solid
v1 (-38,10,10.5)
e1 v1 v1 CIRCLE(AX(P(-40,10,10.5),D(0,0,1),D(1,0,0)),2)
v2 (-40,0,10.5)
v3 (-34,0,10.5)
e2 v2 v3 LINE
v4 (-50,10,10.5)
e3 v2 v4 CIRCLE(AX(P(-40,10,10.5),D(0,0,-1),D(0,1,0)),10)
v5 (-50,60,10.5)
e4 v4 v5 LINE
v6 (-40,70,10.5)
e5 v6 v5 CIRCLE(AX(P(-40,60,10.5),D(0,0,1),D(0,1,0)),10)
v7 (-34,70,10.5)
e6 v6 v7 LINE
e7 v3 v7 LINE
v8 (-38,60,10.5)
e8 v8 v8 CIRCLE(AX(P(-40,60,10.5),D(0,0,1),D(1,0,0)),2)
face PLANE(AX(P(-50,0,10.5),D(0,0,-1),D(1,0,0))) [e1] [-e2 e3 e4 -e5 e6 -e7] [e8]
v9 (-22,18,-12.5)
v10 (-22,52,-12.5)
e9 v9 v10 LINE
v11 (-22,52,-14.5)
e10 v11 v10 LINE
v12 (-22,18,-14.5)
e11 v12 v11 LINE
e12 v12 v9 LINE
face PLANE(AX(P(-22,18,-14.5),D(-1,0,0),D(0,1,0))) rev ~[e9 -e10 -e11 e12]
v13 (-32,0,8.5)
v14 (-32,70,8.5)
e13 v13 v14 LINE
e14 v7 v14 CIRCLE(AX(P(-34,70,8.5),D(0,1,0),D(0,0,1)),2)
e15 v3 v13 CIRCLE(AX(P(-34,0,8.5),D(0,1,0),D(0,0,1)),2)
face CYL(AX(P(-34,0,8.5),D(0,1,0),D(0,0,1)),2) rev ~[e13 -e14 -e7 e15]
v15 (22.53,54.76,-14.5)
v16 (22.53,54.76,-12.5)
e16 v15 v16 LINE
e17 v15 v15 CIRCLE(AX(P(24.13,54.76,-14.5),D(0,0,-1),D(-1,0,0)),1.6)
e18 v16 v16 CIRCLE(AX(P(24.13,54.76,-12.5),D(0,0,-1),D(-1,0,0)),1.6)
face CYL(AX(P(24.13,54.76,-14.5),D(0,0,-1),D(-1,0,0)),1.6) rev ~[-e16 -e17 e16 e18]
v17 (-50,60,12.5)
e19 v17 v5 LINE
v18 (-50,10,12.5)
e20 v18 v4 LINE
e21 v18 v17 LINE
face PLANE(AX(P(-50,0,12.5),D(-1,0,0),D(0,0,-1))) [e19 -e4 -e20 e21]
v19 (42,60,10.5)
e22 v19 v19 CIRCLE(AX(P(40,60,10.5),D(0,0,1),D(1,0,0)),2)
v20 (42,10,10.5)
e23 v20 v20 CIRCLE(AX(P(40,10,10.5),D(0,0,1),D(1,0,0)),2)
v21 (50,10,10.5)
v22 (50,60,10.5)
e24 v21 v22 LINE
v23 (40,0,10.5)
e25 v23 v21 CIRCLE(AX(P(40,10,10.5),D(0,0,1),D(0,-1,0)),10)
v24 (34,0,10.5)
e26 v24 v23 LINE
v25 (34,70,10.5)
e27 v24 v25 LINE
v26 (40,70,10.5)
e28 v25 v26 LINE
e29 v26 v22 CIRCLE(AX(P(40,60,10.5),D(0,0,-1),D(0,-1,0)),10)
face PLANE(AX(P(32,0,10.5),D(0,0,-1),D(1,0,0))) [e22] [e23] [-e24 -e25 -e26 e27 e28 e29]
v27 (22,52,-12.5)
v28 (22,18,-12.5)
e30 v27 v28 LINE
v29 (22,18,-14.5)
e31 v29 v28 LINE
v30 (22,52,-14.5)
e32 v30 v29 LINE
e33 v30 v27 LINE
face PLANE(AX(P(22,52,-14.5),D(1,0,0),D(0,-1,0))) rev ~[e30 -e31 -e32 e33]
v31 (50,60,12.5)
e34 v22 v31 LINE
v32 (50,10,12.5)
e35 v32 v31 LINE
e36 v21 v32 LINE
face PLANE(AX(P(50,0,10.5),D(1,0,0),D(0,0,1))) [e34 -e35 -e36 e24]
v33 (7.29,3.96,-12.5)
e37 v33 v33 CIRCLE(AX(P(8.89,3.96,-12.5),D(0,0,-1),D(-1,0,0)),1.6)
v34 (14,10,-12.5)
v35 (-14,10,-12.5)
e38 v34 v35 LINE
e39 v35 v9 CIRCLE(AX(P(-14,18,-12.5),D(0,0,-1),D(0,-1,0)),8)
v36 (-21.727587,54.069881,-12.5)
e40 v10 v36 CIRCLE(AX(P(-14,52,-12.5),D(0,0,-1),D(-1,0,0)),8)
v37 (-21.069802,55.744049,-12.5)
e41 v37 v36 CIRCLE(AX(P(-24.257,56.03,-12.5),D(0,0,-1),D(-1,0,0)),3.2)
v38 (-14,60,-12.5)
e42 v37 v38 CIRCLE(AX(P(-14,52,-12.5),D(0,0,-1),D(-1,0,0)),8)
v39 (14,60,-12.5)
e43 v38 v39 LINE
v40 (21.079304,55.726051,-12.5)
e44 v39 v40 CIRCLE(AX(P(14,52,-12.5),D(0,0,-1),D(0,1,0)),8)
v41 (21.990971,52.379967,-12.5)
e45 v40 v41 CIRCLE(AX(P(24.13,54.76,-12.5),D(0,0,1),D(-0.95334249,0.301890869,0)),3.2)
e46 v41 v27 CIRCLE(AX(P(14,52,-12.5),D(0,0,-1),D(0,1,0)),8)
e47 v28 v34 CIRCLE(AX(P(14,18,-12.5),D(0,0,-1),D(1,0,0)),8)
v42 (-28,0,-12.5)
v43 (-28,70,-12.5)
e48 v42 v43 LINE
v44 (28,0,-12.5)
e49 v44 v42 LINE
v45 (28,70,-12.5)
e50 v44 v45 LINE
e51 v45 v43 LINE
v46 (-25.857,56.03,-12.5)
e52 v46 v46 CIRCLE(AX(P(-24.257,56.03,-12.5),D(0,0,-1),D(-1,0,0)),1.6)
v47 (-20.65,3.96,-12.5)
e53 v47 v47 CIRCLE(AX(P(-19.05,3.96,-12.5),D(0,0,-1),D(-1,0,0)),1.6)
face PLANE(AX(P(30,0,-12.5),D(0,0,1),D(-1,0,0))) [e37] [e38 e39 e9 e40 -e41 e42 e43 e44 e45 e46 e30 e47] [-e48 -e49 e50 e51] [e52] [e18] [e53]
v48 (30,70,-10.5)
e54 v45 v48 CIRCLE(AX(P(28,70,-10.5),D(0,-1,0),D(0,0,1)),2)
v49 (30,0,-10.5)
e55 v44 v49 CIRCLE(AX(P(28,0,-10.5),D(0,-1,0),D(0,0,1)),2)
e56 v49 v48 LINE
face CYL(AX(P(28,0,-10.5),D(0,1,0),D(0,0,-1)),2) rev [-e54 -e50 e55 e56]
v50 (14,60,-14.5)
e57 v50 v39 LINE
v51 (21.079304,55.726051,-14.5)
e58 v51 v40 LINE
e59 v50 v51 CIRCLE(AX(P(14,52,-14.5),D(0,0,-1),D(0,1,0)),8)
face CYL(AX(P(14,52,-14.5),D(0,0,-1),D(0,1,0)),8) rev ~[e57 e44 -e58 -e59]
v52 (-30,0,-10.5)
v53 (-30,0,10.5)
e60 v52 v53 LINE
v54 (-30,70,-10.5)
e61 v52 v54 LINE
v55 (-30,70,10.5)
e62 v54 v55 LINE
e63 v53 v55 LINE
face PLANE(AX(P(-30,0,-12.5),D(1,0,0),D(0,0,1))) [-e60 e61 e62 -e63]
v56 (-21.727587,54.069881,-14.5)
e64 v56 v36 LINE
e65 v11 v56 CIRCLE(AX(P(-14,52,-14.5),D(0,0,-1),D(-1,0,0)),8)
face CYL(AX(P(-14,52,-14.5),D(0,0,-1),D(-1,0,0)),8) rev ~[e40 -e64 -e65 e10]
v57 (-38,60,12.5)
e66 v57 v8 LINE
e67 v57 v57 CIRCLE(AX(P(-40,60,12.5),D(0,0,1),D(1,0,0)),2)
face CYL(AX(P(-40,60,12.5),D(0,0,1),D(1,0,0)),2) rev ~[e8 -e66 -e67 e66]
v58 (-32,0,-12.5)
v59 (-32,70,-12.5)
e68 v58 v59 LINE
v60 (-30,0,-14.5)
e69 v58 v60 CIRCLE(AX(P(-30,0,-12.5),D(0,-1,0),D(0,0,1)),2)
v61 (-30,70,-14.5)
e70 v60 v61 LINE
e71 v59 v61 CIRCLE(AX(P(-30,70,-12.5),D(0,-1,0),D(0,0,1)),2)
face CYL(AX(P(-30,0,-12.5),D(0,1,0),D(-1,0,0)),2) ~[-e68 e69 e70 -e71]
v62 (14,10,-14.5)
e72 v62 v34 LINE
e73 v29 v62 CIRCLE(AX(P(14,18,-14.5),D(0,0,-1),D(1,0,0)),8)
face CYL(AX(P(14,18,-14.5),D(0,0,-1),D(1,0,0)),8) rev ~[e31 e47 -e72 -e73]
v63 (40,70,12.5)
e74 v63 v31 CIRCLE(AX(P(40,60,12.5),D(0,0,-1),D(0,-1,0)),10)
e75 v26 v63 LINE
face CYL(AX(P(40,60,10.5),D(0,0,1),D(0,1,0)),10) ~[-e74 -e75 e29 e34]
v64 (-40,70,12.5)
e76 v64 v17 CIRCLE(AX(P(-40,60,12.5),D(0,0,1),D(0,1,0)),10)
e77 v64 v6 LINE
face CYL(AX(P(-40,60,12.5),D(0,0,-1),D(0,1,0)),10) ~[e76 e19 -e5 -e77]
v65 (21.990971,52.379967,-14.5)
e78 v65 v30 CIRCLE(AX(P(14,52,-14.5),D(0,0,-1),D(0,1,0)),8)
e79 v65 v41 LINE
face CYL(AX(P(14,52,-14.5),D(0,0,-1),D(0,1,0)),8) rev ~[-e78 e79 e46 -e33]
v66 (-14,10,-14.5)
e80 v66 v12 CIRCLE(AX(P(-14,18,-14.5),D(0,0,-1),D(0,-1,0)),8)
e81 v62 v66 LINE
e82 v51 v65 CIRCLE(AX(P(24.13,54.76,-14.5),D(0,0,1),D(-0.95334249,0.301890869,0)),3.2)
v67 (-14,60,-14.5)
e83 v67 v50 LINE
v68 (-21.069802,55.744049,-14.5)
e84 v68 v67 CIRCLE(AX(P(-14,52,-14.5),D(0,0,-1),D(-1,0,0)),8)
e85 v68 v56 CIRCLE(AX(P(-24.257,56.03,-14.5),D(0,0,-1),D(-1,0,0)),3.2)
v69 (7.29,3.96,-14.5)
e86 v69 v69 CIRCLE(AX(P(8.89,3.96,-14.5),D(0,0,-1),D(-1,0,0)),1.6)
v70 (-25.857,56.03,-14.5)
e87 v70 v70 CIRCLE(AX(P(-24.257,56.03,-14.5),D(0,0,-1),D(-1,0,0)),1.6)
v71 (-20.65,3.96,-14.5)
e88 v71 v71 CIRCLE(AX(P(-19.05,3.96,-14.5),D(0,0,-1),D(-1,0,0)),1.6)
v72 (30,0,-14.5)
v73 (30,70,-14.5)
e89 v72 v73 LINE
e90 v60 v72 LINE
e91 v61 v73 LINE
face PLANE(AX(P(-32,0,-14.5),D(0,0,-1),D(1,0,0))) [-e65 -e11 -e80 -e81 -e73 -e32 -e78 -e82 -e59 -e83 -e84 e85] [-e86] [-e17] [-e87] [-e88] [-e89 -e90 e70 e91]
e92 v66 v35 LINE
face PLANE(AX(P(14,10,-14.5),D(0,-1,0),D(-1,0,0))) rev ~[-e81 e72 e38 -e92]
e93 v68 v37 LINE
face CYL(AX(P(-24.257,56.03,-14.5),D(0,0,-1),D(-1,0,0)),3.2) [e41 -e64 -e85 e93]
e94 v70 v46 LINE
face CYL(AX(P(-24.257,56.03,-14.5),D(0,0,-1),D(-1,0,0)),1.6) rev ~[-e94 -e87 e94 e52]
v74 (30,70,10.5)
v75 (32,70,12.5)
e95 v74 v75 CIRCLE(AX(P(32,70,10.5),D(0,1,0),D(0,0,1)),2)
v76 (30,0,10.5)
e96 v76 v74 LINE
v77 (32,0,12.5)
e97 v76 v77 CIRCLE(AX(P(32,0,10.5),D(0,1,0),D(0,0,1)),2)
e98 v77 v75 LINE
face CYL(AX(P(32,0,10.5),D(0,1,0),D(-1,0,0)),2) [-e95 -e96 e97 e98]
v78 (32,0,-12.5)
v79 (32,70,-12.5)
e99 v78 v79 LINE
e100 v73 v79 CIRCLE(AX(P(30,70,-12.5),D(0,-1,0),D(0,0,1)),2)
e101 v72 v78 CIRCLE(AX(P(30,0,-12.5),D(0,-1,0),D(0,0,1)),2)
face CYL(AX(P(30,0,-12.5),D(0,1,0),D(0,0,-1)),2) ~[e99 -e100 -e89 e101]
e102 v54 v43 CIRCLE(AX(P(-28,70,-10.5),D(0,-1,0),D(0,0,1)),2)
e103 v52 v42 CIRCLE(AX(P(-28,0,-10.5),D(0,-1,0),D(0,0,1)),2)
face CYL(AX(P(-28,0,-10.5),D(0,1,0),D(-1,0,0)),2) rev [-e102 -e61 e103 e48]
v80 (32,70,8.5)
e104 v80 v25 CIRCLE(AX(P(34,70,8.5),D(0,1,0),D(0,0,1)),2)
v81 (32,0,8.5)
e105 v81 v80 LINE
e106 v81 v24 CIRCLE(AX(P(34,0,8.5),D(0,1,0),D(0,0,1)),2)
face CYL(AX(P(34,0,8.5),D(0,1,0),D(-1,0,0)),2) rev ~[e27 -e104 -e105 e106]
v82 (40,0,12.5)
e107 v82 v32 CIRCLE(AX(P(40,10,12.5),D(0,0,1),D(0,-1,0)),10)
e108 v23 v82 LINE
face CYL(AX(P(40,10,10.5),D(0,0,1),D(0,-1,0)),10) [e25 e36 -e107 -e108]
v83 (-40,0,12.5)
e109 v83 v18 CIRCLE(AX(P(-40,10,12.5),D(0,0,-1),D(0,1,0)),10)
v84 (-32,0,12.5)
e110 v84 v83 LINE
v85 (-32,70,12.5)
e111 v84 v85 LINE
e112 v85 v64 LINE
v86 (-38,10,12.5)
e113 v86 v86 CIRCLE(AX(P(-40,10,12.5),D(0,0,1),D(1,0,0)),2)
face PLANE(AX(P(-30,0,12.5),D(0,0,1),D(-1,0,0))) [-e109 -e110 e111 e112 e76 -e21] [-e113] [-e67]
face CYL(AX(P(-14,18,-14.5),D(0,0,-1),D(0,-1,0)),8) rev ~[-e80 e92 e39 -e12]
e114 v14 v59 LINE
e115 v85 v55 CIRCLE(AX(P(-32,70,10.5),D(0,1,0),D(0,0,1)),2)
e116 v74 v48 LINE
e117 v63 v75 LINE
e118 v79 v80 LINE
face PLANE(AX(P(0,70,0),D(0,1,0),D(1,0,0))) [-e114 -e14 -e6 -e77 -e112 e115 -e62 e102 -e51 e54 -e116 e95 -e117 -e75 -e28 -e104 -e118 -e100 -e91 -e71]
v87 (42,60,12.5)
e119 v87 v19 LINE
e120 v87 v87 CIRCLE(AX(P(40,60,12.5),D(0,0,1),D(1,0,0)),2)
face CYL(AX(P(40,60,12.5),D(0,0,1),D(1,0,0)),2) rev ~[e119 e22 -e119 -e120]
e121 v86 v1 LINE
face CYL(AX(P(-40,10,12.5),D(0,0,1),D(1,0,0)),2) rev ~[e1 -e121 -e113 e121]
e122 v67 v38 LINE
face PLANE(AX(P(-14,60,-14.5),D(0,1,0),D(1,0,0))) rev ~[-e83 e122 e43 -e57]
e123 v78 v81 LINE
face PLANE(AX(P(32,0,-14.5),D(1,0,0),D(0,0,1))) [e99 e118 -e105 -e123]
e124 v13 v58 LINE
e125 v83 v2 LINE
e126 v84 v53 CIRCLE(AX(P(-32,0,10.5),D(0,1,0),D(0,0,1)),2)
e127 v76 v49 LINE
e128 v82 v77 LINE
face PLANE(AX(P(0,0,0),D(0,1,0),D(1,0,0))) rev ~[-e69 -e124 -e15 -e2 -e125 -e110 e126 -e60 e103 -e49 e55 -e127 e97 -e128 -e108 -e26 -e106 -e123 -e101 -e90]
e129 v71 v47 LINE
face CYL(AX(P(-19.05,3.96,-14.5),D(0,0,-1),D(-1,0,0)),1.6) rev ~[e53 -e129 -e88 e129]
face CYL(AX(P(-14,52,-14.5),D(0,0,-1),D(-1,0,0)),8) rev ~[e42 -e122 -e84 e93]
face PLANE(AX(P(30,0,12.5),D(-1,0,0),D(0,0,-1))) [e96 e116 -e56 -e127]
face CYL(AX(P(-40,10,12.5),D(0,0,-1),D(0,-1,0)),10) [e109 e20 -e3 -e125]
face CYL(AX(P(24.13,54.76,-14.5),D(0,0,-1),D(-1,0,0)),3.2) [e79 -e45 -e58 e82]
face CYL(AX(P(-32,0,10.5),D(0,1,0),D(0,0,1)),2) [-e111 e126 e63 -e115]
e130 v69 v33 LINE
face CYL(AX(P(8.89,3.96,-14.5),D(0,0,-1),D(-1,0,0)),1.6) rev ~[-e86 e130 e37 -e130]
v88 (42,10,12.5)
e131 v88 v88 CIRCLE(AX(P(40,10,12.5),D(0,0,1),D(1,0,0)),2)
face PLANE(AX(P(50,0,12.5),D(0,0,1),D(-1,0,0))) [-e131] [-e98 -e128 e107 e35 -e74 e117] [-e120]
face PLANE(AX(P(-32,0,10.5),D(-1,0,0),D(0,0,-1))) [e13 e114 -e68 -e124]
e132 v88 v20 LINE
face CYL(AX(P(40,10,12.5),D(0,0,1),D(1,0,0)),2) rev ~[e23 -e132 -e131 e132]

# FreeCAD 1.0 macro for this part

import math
import FreeCAD as App
import Part
import Sketcher
from FreeCAD import Vector


def edges_at(feature, points):
    """Names of the edges that pass closest to the given points."""
    edges = feature.Shape.Edges
    near = lambda p: min(range(len(edges)), key=lambda i: edges[i].distToShape(Part.Vertex(*p))[0])
    return sorted({f"Edge{near(p) + 1}" for p in points})


def add_polygon(sketch, points):
    """Adds a closed chain of lines whose ends are joined by coincident constraints."""
    first, n = sketch.GeometryCount, len(points)
    for a, b in zip(points, points[1:] + points[:1]):
        sketch.addGeometry(Part.LineSegment(App.Vector(*a, 0), App.Vector(*b, 0)), False)
    for i in range(n):
        sketch.addConstraint(Sketcher.Constraint("Coincident", first + i, 2, first + (i + 1) % n, 1))

doc = App.newDocument("Part")
params = doc.addObject("Spreadsheet::Sheet", "Params")
for row, (alias, value) in enumerate([
    ("sketch1_width", "60 mm"),
    ("sketch1_width2", "20 mm"),
    ("sketch1_width3", "18 mm"),
    ("sketch1_height", "25 mm"),
    ("sketch1_height2", "2 mm"),
    ("pad1_length", "70 mm"),
    ("sketch2_radius", "8 mm"),
    ("sketch2_radius2", "3.2 mm"),
    ("sketch2_width", "28 mm"),
    ("sketch2_height", "34 mm"),
    ("pocket1_length", "2 mm"),
    ("sketch3_diameter", "3.2 mm"),
    ("pocket2_length", "2 mm"),
    ("fillet_radius", "10 mm"),
    ("fillet2_radius", "2 mm"),
    ("sketch4_diameter", "4 mm"),
    ("pocket3_length", "2 mm"),
], start=1):
    params.set(f"A{row}", alias)
    params.set(f"B{row}", "=" + value)
    params.setAlias(f"B{row}", alias)

body = doc.addObject("PartDesign::Body", "Body")

sketch1 = body.newObject("Sketcher::SketchObject", "Sketch")
sketch1.AttachmentSupport = (doc.getObject("XZ_Plane"), [""])
sketch1.MapMode = "FlatFace"
add_polygon(sketch1, [(-30, -12.5), (30, -12.5), (30, 12.5), (50, 12.5), (50, 10.5), (32, 10.5), (32, -14.5), (-32, -14.5), (-32, 10.5), (-50, 10.5), (-50, 12.5), (-30, 12.5)])
sketch1.addConstraint([
    Sketcher.Constraint("Horizontal", 0),
    Sketcher.Constraint("Vertical", 1),
    Sketcher.Constraint("Horizontal", 2),
    Sketcher.Constraint("Vertical", 3),
    Sketcher.Constraint("Horizontal", 4),
    Sketcher.Constraint("Vertical", 5),
    Sketcher.Constraint("Horizontal", 6),
    Sketcher.Constraint("Vertical", 7),
    Sketcher.Constraint("Horizontal", 8),
    Sketcher.Constraint("Vertical", 9),
    Sketcher.Constraint("Horizontal", 10),
    Sketcher.Constraint("Vertical", 11),
    Sketcher.Constraint("Symmetric", 0, 2, 10, 2, -1, 1),
    Sketcher.Constraint("Symmetric", 4, 2, 7, 2, -2),
    Sketcher.Constraint("Symmetric", 2, 2, 9, 2, -2),
    Sketcher.Constraint("Equal", 1, 5),
    Sketcher.Constraint("DistanceX", 0, 1, 0, 2, 60.0),
    Sketcher.Constraint("DistanceX", 2, 1, 2, 2, 20.0),
    Sketcher.Constraint("DistanceX", 4, 2, 4, 1, 18.0),
    Sketcher.Constraint("DistanceY", 1, 1, 1, 2, 25.0),
    Sketcher.Constraint("DistanceY", 3, 2, 3, 1, 2.0),
])
sketch1.setExpression("Constraints[28]", "Params.sketch1_width")
sketch1.setExpression("Constraints[29]", "Params.sketch1_width2")
sketch1.setExpression("Constraints[30]", "Params.sketch1_width3")
sketch1.setExpression("Constraints[31]", "Params.sketch1_height")
sketch1.setExpression("Constraints[32]", "Params.sketch1_height2")
pad1 = body.newObject("PartDesign::Pad", "Pad")
pad1.Profile = sketch1
pad1.setExpression("Length", "Params.pad1_length")
pad1.Reversed = True

sketch2 = body.newObject("Sketcher::SketchObject", "Sketch001")
sketch2.AttachmentSupport = (doc.getObject("XY_Plane"), [""])
sketch2.MapMode = "FlatFace"
sketch2.AttachmentOffset = App.Placement(Vector(0, 0, -14.5), App.Rotation())
sketch2.addGeometry([
    Part.ArcOfCircle(Part.Circle(Vector(24.13, 54.76, 0), Vector(0, 0, 1), 3.2), math.radians(162), math.radians(228)),
    Part.ArcOfCircle(Part.Circle(Vector(14, 52, 0), Vector(0, 0, 1), 8), math.radians(0), math.radians(2.72)),
    Part.LineSegment(Vector(22, 52, 0), Vector(22, 18, 0)),
    Part.ArcOfCircle(Part.Circle(Vector(14, 18, 0), Vector(0, 0, 1), 8), math.radians(-90), math.radians(0)),
    Part.LineSegment(Vector(14, 10, 0), Vector(-14, 10, 0)),
    Part.ArcOfCircle(Part.Circle(Vector(-14, 18, 0), Vector(0, 0, 1), 8), math.radians(180), math.radians(270)),
    Part.LineSegment(Vector(-22, 18, 0), Vector(-22, 52, 0)),
    Part.ArcOfCircle(Part.Circle(Vector(-14, 52, 0), Vector(0, 0, 1), 8), math.radians(165), math.radians(180)),
    Part.ArcOfCircle(Part.Circle(Vector(-24.26, 56.03, 0), Vector(0, 0, 1), 3.2), math.radians(-38), math.radians(-5)),
    Part.ArcOfCircle(Part.Circle(Vector(-14, 52, 0), Vector(0, 0, 1), 8), math.radians(90), math.radians(152)),
    Part.LineSegment(Vector(-14, 60, 0), Vector(14, 60, 0)),
    Part.ArcOfCircle(Part.Circle(Vector(14, 52, 0), Vector(0, 0, 1), 8), math.radians(28), math.radians(90)),
], False)
sketch2.addConstraint([
    Sketcher.Constraint("Coincident", 0, 2, 1, 2),
    Sketcher.Constraint("Tangent", 1, 1, 2, 1),
    Sketcher.Constraint("Tangent", 2, 2, 3, 2),
    Sketcher.Constraint("Tangent", 3, 1, 4, 1),
    Sketcher.Constraint("Tangent", 4, 2, 5, 2),
    Sketcher.Constraint("Tangent", 5, 1, 6, 1),
    Sketcher.Constraint("Tangent", 6, 2, 7, 2),
    Sketcher.Constraint("Coincident", 7, 1, 8, 1),
    Sketcher.Constraint("Coincident", 8, 2, 9, 2),
    Sketcher.Constraint("Tangent", 9, 1, 10, 1),
    Sketcher.Constraint("Tangent", 10, 2, 11, 2),
    Sketcher.Constraint("Coincident", 11, 1, 0, 1),
    Sketcher.Constraint("Vertical", 2),
    Sketcher.Constraint("Horizontal", 4),
    Sketcher.Constraint("Vertical", 6),
    Sketcher.Constraint("Horizontal", 10),
    Sketcher.Constraint("Coincident", 9, 3, 7, 3),
    Sketcher.Constraint("Coincident", 11, 3, 1, 3),
    Sketcher.Constraint("Equal", 1, 3),
    Sketcher.Constraint("Equal", 3, 5),
    Sketcher.Constraint("Equal", 5, 7),
    Sketcher.Constraint("Equal", 0, 8),
    Sketcher.Constraint("Equal", 7, 9),
    Sketcher.Constraint("Equal", 9, 11),
    Sketcher.Constraint("Radius", 1, 8.0),
    Sketcher.Constraint("Radius", 0, 3.2),
    Sketcher.Constraint("DistanceX", 4, 2, 4, 1, 28.0),
    Sketcher.Constraint("DistanceY", 2, 2, 2, 1, 34.0),
    Sketcher.Constraint("DistanceX", -1, 1, 0, 3, 24.13),
    Sketcher.Constraint("DistanceY", 0, 3, 8, 3, 1.27),
    Sketcher.Constraint("DistanceX", -1, 1, 1, 3, 14.0),
    Sketcher.Constraint("DistanceY", -1, 1, 1, 3, 52.0),
    Sketcher.Constraint("DistanceX", 8, 3, -1, 1, 24.257),
    Sketcher.Constraint("DistanceY", -1, 1, 0, 3, 54.76),
])
sketch2.setExpression("Constraints[24]", "Params.sketch2_radius")
sketch2.setExpression("Constraints[25]", "Params.sketch2_radius2")
sketch2.setExpression("Constraints[26]", "Params.sketch2_width")
sketch2.setExpression("Constraints[27]", "Params.sketch2_height")
pocket1 = body.newObject("PartDesign::Pocket", "Pocket")
pocket1.Profile = sketch2
pocket1.setExpression("Length", "Params.pocket1_length")
pocket1.Reversed = True

sketch3 = body.newObject("Sketcher::SketchObject", "Sketch002")
sketch3.AttachmentSupport = (doc.getObject("XY_Plane"), [""])
sketch3.MapMode = "FlatFace"
sketch3.AttachmentOffset = App.Placement(Vector(0, 0, -14.5), App.Rotation())
sketch3.addGeometry([
    Part.Circle(Vector(24.1, 54.8, 0), Vector(0, 0, 1), 1.6),
    Part.Circle(Vector(-24.3, 56, 0), Vector(0, 0, 1), 1.6),
    Part.Circle(Vector(8.9, 4, 0), Vector(0, 0, 1), 1.6),
    Part.Circle(Vector(-19.1, 4, 0), Vector(0, 0, 1), 1.6),
], False)
sketch3.addConstraint([
    Sketcher.Constraint("Equal", 0, 1),
    Sketcher.Constraint("Equal", 1, 2),
    Sketcher.Constraint("Equal", 2, 3),
    Sketcher.Constraint("Horizontal", 2, 3, 3, 3),
    Sketcher.Constraint("Diameter", 0, 3.2),
    Sketcher.Constraint("DistanceY", 2, 3, 0, 3, 50.8),
    Sketcher.Constraint("DistanceX", -1, 1, 0, 3, 24.13),
    Sketcher.Constraint("DistanceY", 0, 3, 1, 3, 1.27),
    Sketcher.Constraint("DistanceX", 2, 3, 0, 3, 15.24),
    Sketcher.Constraint("DistanceX", 3, 3, 2, 3, 27.94),
    Sketcher.Constraint("DistanceX", 1, 3, -1, 1, 24.257),
    Sketcher.Constraint("DistanceY", -1, 1, 0, 3, 54.76),
])
sketch3.setExpression("Constraints[4]", "Params.sketch3_diameter")
pocket2 = body.newObject("PartDesign::Pocket", "Pocket001")
pocket2.Profile = sketch3
pocket2.setExpression("Length", "Params.pocket2_length")
pocket2.Reversed = True
doc.recompute()

fillet = body.newObject("PartDesign::Fillet", "Fillet")
fillet.Base = (pocket2, edges_at(pocket2, [
    (-50, 70, 11.5),
    (50, 70, 11.5),
    (50, 0, 11.5),
    (-50, 0, 11.5),
]))
fillet.setExpression("Radius", "Params.fillet_radius")
doc.recompute()

fillet2 = body.newObject("PartDesign::Fillet", "Fillet001")
fillet2.Base = (fillet, edges_at(fillet, [
    (-30, 35, 12.5),
    (-30, 35, -12.5),
    (30, 35, -12.5),
    (30, 35, 12.5),
    (32, 35, 10.5),
    (32, 35, -14.5),
    (-32, 35, -14.5),
    (-32, 35, 10.5),
]))
fillet2.setExpression("Radius", "Params.fillet2_radius")

sketch4 = body.newObject("Sketcher::SketchObject", "Sketch003")
sketch4.AttachmentSupport = (doc.getObject("XY_Plane"), [""])
sketch4.MapMode = "FlatFace"
sketch4.AttachmentOffset = App.Placement(Vector(0, 0, 12.5), App.Rotation())
sketch4.addGeometry([
    Part.Circle(Vector(40, 60, 0), Vector(0, 0, 1), 2),
    Part.Circle(Vector(40, 10, 0), Vector(0, 0, 1), 2),
    Part.Circle(Vector(-40, 60, 0), Vector(0, 0, 1), 2),
    Part.Circle(Vector(-40, 10, 0), Vector(0, 0, 1), 2),
], False)
sketch4.addConstraint([
    Sketcher.Constraint("Equal", 0, 1),
    Sketcher.Constraint("Equal", 1, 2),
    Sketcher.Constraint("Equal", 2, 3),
    Sketcher.Constraint("Symmetric", 0, 3, 2, 3, -2),
    Sketcher.Constraint("Symmetric", 1, 3, 3, 3, -2),
    Sketcher.Constraint("Vertical", 0, 3, 1, 3),
    Sketcher.Constraint("Diameter", 0, 4.0),
    Sketcher.Constraint("DistanceX", 2, 3, 0, 3, 80.0),
    Sketcher.Constraint("DistanceY", -1, 1, 0, 3, 60.0),
    Sketcher.Constraint("DistanceY", -1, 1, 1, 3, 10.0),
])
sketch4.setExpression("Constraints[6]", "Params.sketch4_diameter")
pocket3 = body.newObject("PartDesign::Pocket", "Pocket002")
pocket3.Profile = sketch4
pocket3.setExpression("Length", "Params.pocket3_length")

doc.recompute()
